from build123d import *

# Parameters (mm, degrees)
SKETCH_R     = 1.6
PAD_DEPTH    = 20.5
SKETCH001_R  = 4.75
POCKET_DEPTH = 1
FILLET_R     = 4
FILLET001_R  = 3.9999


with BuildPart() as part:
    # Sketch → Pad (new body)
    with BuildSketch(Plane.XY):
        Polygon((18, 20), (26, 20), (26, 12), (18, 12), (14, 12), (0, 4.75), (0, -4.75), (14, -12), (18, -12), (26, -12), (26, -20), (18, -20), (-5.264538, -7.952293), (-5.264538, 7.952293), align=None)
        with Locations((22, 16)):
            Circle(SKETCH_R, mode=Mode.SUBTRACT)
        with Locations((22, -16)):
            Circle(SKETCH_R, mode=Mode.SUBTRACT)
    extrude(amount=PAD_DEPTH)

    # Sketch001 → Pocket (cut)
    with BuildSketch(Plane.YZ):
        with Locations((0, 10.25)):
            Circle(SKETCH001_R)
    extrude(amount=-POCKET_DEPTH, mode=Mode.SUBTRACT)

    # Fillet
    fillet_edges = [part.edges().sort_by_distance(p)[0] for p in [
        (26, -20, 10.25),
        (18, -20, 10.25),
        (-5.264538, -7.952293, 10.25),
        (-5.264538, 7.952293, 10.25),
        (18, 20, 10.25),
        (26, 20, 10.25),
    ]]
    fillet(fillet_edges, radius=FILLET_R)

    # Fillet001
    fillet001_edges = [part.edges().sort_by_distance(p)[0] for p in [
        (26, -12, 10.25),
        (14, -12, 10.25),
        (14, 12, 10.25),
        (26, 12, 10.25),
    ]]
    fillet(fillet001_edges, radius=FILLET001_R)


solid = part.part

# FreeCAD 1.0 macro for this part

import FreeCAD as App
import Part
import Sketcher

V = App.Vector
Q = App.Units.Quantity


def edges_at(feature, points):
    """Names of the edges that pass closest to the given points."""
    edges = feature.Shape.Edges
    near = lambda p: min(range(len(edges)), key=lambda i: edges[i].distToShape(Part.Vertex(*p))[0])
    return sorted({f"Edge{near(p) + 1}" for p in points})


def add_polygon(sketch, points):
    """Adds a closed chain of lines whose ends are joined by coincident constraints."""
    first, n = sketch.GeometryCount, len(points)
    for a, b in zip(points, points[1:] + points[:1]):
        sketch.addGeometry(Part.LineSegment(App.Vector(*a, 0), App.Vector(*b, 0)), False)
    for i in range(n):
        sketch.addConstraint(Sketcher.Constraint("Coincident", first + i, 2, first + (i + 1) % n, 1))

doc = App.newDocument("Part")
body = doc.addObject("PartDesign::Body", "Body")

sketch1 = body.newObject("Sketcher::SketchObject", "Sketch")
sketch1.AttachmentSupport = (doc.getObject("XY_Plane"), [""])
sketch1.MapMode = "FlatFace"
add_polygon(sketch1, [(26, 20), (18, 20), (-5.3, 8), (-5.3, -8), (18, -20), (26, -20), (26, -12), (14, -12), (0, -4.8), (0, 4.8), (14, 12), (26, 12)])
sketch1.addGeometry(Part.Circle(V(22, -16, 0), V(0, 0, 1), 1.6), False)
sketch1.addGeometry(Part.Circle(V(22, 16, 0), V(0, 0, 1), 1.6), False)
sketch1.addConstraint(Sketcher.Constraint("Horizontal", 0))
sketch1.addConstraint(Sketcher.Constraint("Vertical", 2))
sketch1.addConstraint(Sketcher.Constraint("Horizontal", 4))
sketch1.addConstraint(Sketcher.Constraint("Vertical", 5))
sketch1.addConstraint(Sketcher.Constraint("Horizontal", 6))
sketch1.addConstraint(Sketcher.Constraint("Vertical", 8))
sketch1.addConstraint(Sketcher.Constraint("Horizontal", 10))
sketch1.addConstraint(Sketcher.Constraint("Vertical", 11))
sketch1.addConstraint(Sketcher.Constraint("Equal", 12, 13))
sketch1.addConstraint(Sketcher.Constraint("Symmetric", 7, 2, 8, 2, -1, 1))
sketch1.addConstraint(Sketcher.Constraint("Symmetric", 12, 3, 13, 3, -1))
sketch1.addConstraint(Sketcher.Constraint("Symmetric", 0, 2, 3, 2, -1))
sketch1.addConstraint(Sketcher.Constraint("Symmetric", 6, 2, 9, 2, -1))
sketch1.addConstraint(Sketcher.Constraint("Parallel", 3, 7))
sketch1.addConstraint(Sketcher.Constraint("Parallel", 1, 9))
sketch1.addConstraint(Sketcher.Constraint("Vertical", 5, 2, 10, 2))
sketch1.addConstraint(Sketcher.Constraint("Equal", 4, 5))
sketch1.addConstraint(Sketcher.Constraint("Diameter", 12, Q("3.2 mm")))
sketch1.addConstraint(Sketcher.Constraint("DistanceX", 0, 2, 0, 1, Q("8 mm")))
sketch1.addConstraint(Sketcher.Constraint("DistanceX", 6, 2, 6, 1, Q("12 mm")))
sketch1.addConstraint(Sketcher.Constraint("DistanceY", 8, 1, 8, 2, Q("9.5 mm")))
sketch1.addConstraint(Sketcher.Constraint("DistanceX", -1, 1, 12, 3, Q("22 mm")))
sketch1.addConstraint(Sketcher.Constraint("DistanceY", 12, 3, -1, 1, Q("16 mm")))
sketch1.addConstraint(Sketcher.Constraint("DistanceX", -1, 1, 0, 2, Q("18 mm")))
sketch1.addConstraint(Sketcher.Constraint("DistanceY", -1, 1, 0, 2, Q("20 mm")))
sketch1.addConstraint(Sketcher.Constraint("Distance", 1, Q("26.198969 mm")))
pad1 = body.newObject("PartDesign::Pad", "Pad")
pad1.Profile = sketch1
pad1.Length = 20.5

sketch2 = body.newObject("Sketcher::SketchObject", "Sketch001")
sketch2.AttachmentSupport = (doc.getObject("YZ_Plane"), [""])
sketch2.MapMode = "FlatFace"
sketch2.addGeometry(Part.Circle(V(0, 10.2, 0), V(0, 0, 1), 4.8), False)
sketch2.addConstraint(Sketcher.Constraint("PointOnObject", 0, 3, -2))
sketch2.addConstraint(Sketcher.Constraint("Diameter", 0, Q("9.5 mm")))
sketch2.addConstraint(Sketcher.Constraint("DistanceY", -1, 1, 0, 3, Q("10.25 mm")))
pocket1 = body.newObject("PartDesign::Pocket", "Pocket")
pocket1.Profile = sketch2
pocket1.Length = 1
doc.recompute()

fillet = body.newObject("PartDesign::Fillet", "Fillet")
fillet.Base = (pocket1, edges_at(pocket1, [
    (26, -20, 10.25),
    (18, -20, 10.25),
    (-5.265, -7.952, 10.25),
    (-5.265, 7.952, 10.25),
    (18, 20, 10.25),
    (26, 20, 10.25),
]))
fillet.Radius = 4
doc.recompute()

fillet2 = body.newObject("PartDesign::Fillet", "Fillet001")
fillet2.Base = (fillet, edges_at(fillet, [
    (26, -12, 10.25),
    (14, -12, 10.25),
    (14, 12, 10.25),
    (26, 12, 10.25),
]))
fillet2.Radius = 3.9999

doc.recompute()
